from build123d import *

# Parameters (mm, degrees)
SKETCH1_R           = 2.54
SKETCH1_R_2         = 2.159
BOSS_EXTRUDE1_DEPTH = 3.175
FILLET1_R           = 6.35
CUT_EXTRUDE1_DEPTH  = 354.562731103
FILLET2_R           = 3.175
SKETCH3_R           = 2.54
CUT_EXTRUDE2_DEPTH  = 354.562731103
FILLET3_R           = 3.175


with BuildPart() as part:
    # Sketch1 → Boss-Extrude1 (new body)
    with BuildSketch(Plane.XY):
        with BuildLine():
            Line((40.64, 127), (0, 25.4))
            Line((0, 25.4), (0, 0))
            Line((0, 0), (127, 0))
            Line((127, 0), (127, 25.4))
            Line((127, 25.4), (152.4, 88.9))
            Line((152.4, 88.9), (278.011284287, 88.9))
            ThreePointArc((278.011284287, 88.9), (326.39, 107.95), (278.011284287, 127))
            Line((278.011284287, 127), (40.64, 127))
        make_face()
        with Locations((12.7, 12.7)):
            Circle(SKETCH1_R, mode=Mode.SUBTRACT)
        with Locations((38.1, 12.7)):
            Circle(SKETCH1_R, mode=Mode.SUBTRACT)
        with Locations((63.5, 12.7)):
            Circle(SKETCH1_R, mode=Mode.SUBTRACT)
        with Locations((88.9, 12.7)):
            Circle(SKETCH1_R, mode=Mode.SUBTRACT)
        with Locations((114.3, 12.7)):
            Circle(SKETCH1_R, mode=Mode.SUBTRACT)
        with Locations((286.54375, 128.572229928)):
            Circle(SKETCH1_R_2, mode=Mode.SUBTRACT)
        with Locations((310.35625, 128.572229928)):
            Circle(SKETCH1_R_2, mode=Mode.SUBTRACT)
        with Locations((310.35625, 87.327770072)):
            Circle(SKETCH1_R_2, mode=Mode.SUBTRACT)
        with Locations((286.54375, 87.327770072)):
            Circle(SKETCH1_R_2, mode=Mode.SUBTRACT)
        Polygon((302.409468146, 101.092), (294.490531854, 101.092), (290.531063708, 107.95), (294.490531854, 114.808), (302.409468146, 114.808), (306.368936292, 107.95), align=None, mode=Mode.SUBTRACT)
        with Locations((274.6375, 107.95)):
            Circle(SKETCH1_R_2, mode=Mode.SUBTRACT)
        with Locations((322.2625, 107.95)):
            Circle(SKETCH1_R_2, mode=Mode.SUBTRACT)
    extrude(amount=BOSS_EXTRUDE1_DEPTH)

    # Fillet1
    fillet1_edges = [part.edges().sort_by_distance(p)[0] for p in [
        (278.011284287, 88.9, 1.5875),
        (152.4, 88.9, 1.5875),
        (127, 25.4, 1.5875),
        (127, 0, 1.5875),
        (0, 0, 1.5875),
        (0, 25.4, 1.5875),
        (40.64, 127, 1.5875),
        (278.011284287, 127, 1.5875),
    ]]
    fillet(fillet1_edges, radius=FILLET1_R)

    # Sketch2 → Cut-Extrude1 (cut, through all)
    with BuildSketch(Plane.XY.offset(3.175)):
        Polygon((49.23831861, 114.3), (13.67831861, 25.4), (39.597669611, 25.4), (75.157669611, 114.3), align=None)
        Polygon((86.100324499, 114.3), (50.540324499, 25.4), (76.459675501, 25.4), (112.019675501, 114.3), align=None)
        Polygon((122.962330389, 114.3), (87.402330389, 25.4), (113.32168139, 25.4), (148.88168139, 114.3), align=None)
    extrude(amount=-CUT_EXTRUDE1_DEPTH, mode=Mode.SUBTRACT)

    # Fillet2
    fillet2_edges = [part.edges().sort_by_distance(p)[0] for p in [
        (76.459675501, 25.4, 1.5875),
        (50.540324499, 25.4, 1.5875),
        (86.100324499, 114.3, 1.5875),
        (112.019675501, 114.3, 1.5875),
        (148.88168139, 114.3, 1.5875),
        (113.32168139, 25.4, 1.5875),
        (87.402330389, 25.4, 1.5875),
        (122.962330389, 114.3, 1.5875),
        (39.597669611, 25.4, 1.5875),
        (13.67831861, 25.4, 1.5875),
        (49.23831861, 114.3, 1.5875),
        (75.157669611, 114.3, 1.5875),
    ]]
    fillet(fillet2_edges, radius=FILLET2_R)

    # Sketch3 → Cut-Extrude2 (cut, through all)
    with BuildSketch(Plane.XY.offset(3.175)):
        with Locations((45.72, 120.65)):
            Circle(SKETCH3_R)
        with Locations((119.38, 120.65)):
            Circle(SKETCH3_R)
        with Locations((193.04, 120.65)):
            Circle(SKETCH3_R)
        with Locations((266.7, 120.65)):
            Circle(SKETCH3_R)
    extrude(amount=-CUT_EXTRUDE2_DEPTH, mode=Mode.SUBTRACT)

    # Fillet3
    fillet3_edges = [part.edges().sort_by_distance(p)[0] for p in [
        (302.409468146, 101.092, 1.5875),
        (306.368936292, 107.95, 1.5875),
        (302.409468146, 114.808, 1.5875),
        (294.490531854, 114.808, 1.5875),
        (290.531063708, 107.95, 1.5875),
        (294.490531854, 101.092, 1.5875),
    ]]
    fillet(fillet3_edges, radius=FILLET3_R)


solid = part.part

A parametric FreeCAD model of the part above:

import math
import FreeCAD as App
import Part
import Sketcher

V = App.Vector
Q = App.Units.Quantity


def edges_at(feature, points):
    """Names of the edges that pass closest to the given points."""
    edges = feature.Shape.Edges
    near = lambda p: min(range(len(edges)), key=lambda i: edges[i].distToShape(Part.Vertex(*p))[0])
    return sorted({f"Edge{near(p) + 1}" for p in points})

doc = App.newDocument("Part")
body = doc.addObject("PartDesign::Body", "Body")

# Sketch on XY plane
sketch1 = doc.addObject("Sketcher::SketchObject", "Sketch")
body.addObject(sketch1)
sketch1.AttachmentSupport = (doc.XY_Plane, [""])
sketch1.MapMode = "FlatFace"
sketch1.addGeometry([
    Part.LineSegment(V(40.6, 127, 0), V(0, 25.4, 0)),  # 0
    Part.LineSegment(V(0, 25.4, 0), V(0, 0, 0)),  # 1
    Part.LineSegment(V(0, 0, 0), V(127, 0, 0)),  # 2
    Part.LineSegment(V(127, 0, 0), V(127, 25.4, 0)),  # 3
    Part.LineSegment(V(127, 25.4, 0), V(152.4, 88.9, 0)),  # 4
    Part.LineSegment(V(152.4, 88.9, 0), V(278, 88.9, 0)),  # 5
    Part.ArcOfCircle(Part.Circle(V(298.4, 108, 0), V(0, 0, 1), 27.9), math.radians(-137), math.radians(137)),  # 6
    Part.LineSegment(V(278, 127, 0), V(40.6, 127, 0)),  # 7
    Part.Circle(V(12.7, 12.7, 0), V(0, 0, 1), 2.5),  # 8
    Part.Circle(V(38.1, 12.7, 0), V(0, 0, 1), 2.5),  # 9
    Part.Circle(V(63.5, 12.7, 0), V(0, 0, 1), 2.5),  # 10
    Part.Circle(V(88.9, 12.7, 0), V(0, 0, 1), 2.5),  # 11
    Part.Circle(V(114.3, 12.7, 0), V(0, 0, 1), 2.5),  # 12
    Part.Circle(V(286.5, 87.3, 0), V(0, 0, 1), 2.2),  # 13
    Part.Circle(V(310.4, 87.3, 0), V(0, 0, 1), 2.2),  # 14
    Part.Circle(V(274.6, 108, 0), V(0, 0, 1), 2.2),  # 15
    Part.LineSegment(V(306.4, 108, 0), V(302.4, 101.1, 0)),  # 16
    Part.LineSegment(V(302.4, 101.1, 0), V(294.5, 101.1, 0)),  # 17
    Part.LineSegment(V(294.5, 101.1, 0), V(290.5, 108, 0)),  # 18
    Part.LineSegment(V(290.5, 108, 0), V(294.5, 114.8, 0)),  # 19
    Part.LineSegment(V(294.5, 114.8, 0), V(302.4, 114.8, 0)),  # 20
    Part.LineSegment(V(302.4, 114.8, 0), V(306.4, 108, 0)),  # 21
    Part.Circle(V(322.3, 108, 0), V(0, 0, 1), 2.2),  # 22
    Part.Circle(V(286.5, 128.6, 0), V(0, 0, 1), 2.2),  # 23
    Part.Circle(V(310.4, 128.6, 0), V(0, 0, 1), 2.2),  # 24
], False)
sketch1.addConstraint([
    Sketcher.Constraint("Coincident", 0, 2, 1, 1),
    Sketcher.Constraint("Coincident", 1, 2, 2, 1),
    Sketcher.Constraint("Coincident", 2, 2, 3, 1),
    Sketcher.Constraint("Coincident", 3, 2, 4, 1),
    Sketcher.Constraint("Coincident", 4, 2, 5, 1),
    Sketcher.Constraint("Coincident", 5, 2, 6, 1),
    Sketcher.Constraint("Coincident", 6, 2, 7, 1),
    Sketcher.Constraint("Coincident", 7, 2, 0, 1),
    Sketcher.Constraint("Coincident", 16, 2, 17, 1),
    Sketcher.Constraint("Coincident", 17, 2, 18, 1),
    Sketcher.Constraint("Coincident", 18, 2, 19, 1),
    Sketcher.Constraint("Coincident", 19, 2, 20, 1),
    Sketcher.Constraint("Coincident", 20, 2, 21, 1),
    Sketcher.Constraint("Coincident", 21, 2, 16, 1),
    Sketcher.Constraint("Vertical", 1),
    Sketcher.Constraint("Horizontal", 2),
    Sketcher.Constraint("Vertical", 3),
    Sketcher.Constraint("Horizontal", 5),
    Sketcher.Constraint("Horizontal", 7),
    Sketcher.Constraint("Horizontal", 17),
    Sketcher.Constraint("Horizontal", 20),
    Sketcher.Constraint("Coincident", 1, 2, -1, 1),
    Sketcher.Constraint("Equal", 8, 9),
    Sketcher.Constraint("Equal", 9, 10),
    Sketcher.Constraint("Equal", 10, 11),
    Sketcher.Constraint("Equal", 11, 12),
    Sketcher.Constraint("Equal", 13, 14),
    Sketcher.Constraint("Equal", 14, 15),
    Sketcher.Constraint("Equal", 15, 22),
    Sketcher.Constraint("Equal", 22, 23),
    Sketcher.Constraint("Equal", 23, 24),
    Sketcher.Constraint("Parallel", 0, 4),
    Sketcher.Constraint("Parallel", 16, 19),
    Sketcher.Constraint("Parallel", 18, 21),
    Sketcher.Constraint("Horizontal", 8, 3, 9, 3),
    Sketcher.Constraint("Horizontal", 9, 3, 10, 3),
    Sketcher.Constraint("Horizontal", 10, 3, 11, 3),
    Sketcher.Constraint("Horizontal", 11, 3, 12, 3),
    Sketcher.Constraint("Horizontal", 13, 3, 14, 3),
    Sketcher.Constraint("Horizontal", 6, 3, 15, 3),
    Sketcher.Constraint("Horizontal", 15, 3, 22, 3),
    Sketcher.Constraint("Horizontal", 23, 3, 24, 3),
    Sketcher.Constraint("Horizontal", 0, 2, 3, 2),
    Sketcher.Constraint("Horizontal", 22, 3, 18, 2),
    Sketcher.Constraint("Horizontal", 18, 2, 21, 2),
    Sketcher.Constraint("Vertical", 13, 3, 23, 3),
    Sketcher.Constraint("Vertical", 14, 3, 24, 3),
    Sketcher.Constraint("Vertical", 5, 2, 6, 2),
    Sketcher.Constraint("Vertical", 17, 2, 19, 2),
    Sketcher.Constraint("Vertical", 16, 2, 20, 2),
    Sketcher.Constraint("Diameter", 8, Q("0.2 in")),
    Sketcher.Constraint("Radius", 6, Q("1.1 in")),
    Sketcher.Constraint("Diameter", 13, Q("0.17 in")),
    Sketcher.Constraint("DistanceX", 2, 1, 2, 2, Q("5 in")),
    Sketcher.Constraint("DistanceY", 1, 2, 1, 1, Q("1 in")),
    Sketcher.Constraint("DistanceX", -1, 1, 4, 2, Q("6 in")),
    Sketcher.Constraint("DistanceY", -1, 1, 6, 2, Q("5 in")),
    Sketcher.Constraint("Angle", 16, Q("-120 deg")),
    Sketcher.Constraint("DistanceX", 8, 3, 9, 3, Q("1 in")),
    Sketcher.Constraint("DistanceX", 9, 3, 10, 3, Q("1 in")),
    Sketcher.Constraint("DistanceX", 10, 3, 11, 3, Q("1 in")),
    Sketcher.Constraint("DistanceX", 11, 3, 12, 3, Q("1 in")),
    Sketcher.Constraint("DistanceY", 12, 3, 4, 2, Q("3 in")),
    Sketcher.Constraint("DistanceX", -1, 1, 8, 3, Q("0.5 in")),
    Sketcher.Constraint("DistanceY", -1, 1, 8, 3, Q("0.5 in")),
    Sketcher.Constraint("DistanceX", -1, 1, 6, 3, Q("11.75 in")),
    Sketcher.Constraint("DistanceY", -1, 1, 16, 2, Q("3.98 in")),
    Sketcher.Constraint("DistanceX", -1, 1, 13, 3, Q("11.28125 in")),
    Sketcher.Constraint("DistanceX", -1, 1, 14, 3, Q("12.21875 in")),
    Sketcher.Constraint("DistanceX", -1, 1, 15, 3, Q("10.8125 in")),
    Sketcher.Constraint("DistanceX", -1, 1, 22, 3, Q("12.6875 in")),
    Sketcher.Constraint("DistanceX", 17, 2, 17, 1, Q("7.918936 mm")),
    Sketcher.Constraint("DistanceY", -1, 1, 13, 3, Q("87.32777 mm")),
    Sketcher.Constraint("DistanceY", -1, 1, 23, 3, Q("128.57223 mm")),
    Sketcher.Constraint("DistanceX", -1, 1, 16, 2, Q("302.409468 mm")),
])
pad1 = doc.addObject("PartDesign::Pad", "Pad")
body.addObject(pad1)
pad1.Profile = sketch1
pad1.Length = Q("0.125 in")
doc.recompute()

fillet = doc.addObject("PartDesign::Fillet", "Fillet")
body.addObject(fillet)
fillet.Base = (pad1, edges_at(pad1, [
    (278.011, 88.9, 1.587),
    (152.4, 88.9, 1.587),
    (127, 25.4, 1.587),
    (127, 0, 1.587),
    (0, 0, 1.587),
    (0, 25.4, 1.587),
    (40.64, 127, 1.587),
    (278.011, 127, 1.587),
]))
fillet.Radius = Q("0.25 in")

# Sketch on XY plane
sketch2 = doc.addObject("Sketcher::SketchObject", "Sketch001")
body.addObject(sketch2)
sketch2.AttachmentSupport = (doc.XY_Plane, [""])
sketch2.MapMode = "FlatFace"
sketch2.AttachmentOffset = App.Placement(V(0, 0, 0.125 * 25.4), App.Rotation())
sketch2.addGeometry([
    Part.LineSegment(V(49, 114, 0), V(14, 25, 0)),  # 0
    Part.LineSegment(V(14, 25, 0), V(40, 25, 0)),  # 1
    Part.LineSegment(V(40, 25, 0), V(75, 114, 0)),  # 2
    Part.LineSegment(V(75, 114, 0), V(49, 114, 0)),  # 3
    Part.LineSegment(V(86, 114, 0), V(51, 25, 0)),  # 4
    Part.LineSegment(V(51, 25, 0), V(76, 25, 0)),  # 5
    Part.LineSegment(V(76, 25, 0), V(112, 114, 0)),  # 6
    Part.LineSegment(V(112, 114, 0), V(86, 114, 0)),  # 7
    Part.LineSegment(V(123, 114, 0), V(87, 25, 0)),  # 8
    Part.LineSegment(V(87, 25, 0), V(113, 25, 0)),  # 9
    Part.LineSegment(V(113, 25, 0), V(149, 114, 0)),  # 10
    Part.LineSegment(V(149, 114, 0), V(123, 114, 0)),  # 11
], False)
sketch2.addConstraint([
    Sketcher.Constraint("Coincident", 0, 2, 1, 1),
    Sketcher.Constraint("Coincident", 1, 2, 2, 1),
    Sketcher.Constraint("Coincident", 2, 2, 3, 1),
    Sketcher.Constraint("Coincident", 3, 2, 0, 1),
    Sketcher.Constraint("Coincident", 4, 2, 5, 1),
    Sketcher.Constraint("Coincident", 5, 2, 6, 1),
    Sketcher.Constraint("Coincident", 6, 2, 7, 1),
    Sketcher.Constraint("Coincident", 7, 2, 4, 1),
    Sketcher.Constraint("Coincident", 8, 2, 9, 1),
    Sketcher.Constraint("Coincident", 9, 2, 10, 1),
    Sketcher.Constraint("Coincident", 10, 2, 11, 1),
    Sketcher.Constraint("Coincident", 11, 2, 8, 1),
    Sketcher.Constraint("Horizontal", 1),
    Sketcher.Constraint("Horizontal", 3),
    Sketcher.Constraint("Horizontal", 5),
    Sketcher.Constraint("Horizontal", 7),
    Sketcher.Constraint("Horizontal", 9),
    Sketcher.Constraint("Horizontal", 11),
    Sketcher.Constraint("Parallel", 0, 2),
    Sketcher.Constraint("Parallel", 2, 4),
    Sketcher.Constraint("Parallel", 4, 6),
    Sketcher.Constraint("Parallel", 6, 8),
    Sketcher.Constraint("Parallel", 8, 10),
    Sketcher.Constraint("Horizontal", 1, 2, 4, 2),
    Sketcher.Constraint("Horizontal", 3, 2, 6, 2),
    Sketcher.Constraint("Horizontal", 5, 2, 8, 2),
    Sketcher.Constraint("Horizontal", 7, 2, 10, 2),
    Sketcher.Constraint("Equal", 3, 5),
    Sketcher.Constraint("Equal", 7, 9),
    Sketcher.Constraint("DistanceY", -1, 1, 0, 2, Q("1 in")),
    Sketcher.Constraint("DistanceY", -1, 1, 2, 2, Q("4.5 in")),
    Sketcher.Constraint("DistanceX", 1, 2, 2, 2, Q("1.4 in")),
    Sketcher.Constraint("DistanceX", 1, 1, 1, 2, Q("25.919351 mm")),
    Sketcher.Constraint("DistanceX", -1, 1, 0, 2, Q("13.678319 mm")),
    Sketcher.Constraint("DistanceX", -1, 1, 8, 2, Q("87.40233 mm")),
    Sketcher.Constraint("DistanceX", -1, 1, 4, 2, Q("50.540324 mm")),
])
pocket1 = doc.addObject("PartDesign::Pocket", "Pocket")
body.addObject(pocket1)
pocket1.Profile = sketch2
pocket1.Type = "ThroughAll"
doc.recompute()

fillet2 = doc.addObject("PartDesign::Fillet", "Fillet001")
body.addObject(fillet2)
fillet2.Base = (pocket1, edges_at(pocket1, [
    (76.46, 25.4, 1.587),
    (50.54, 25.4, 1.587),
    (86.1, 114.3, 1.587),
    (112.02, 114.3, 1.587),
    (148.882, 114.3, 1.587),
    (113.322, 25.4, 1.587),
    (87.402, 25.4, 1.587),
    (122.962, 114.3, 1.587),
    (39.598, 25.4, 1.587),
    (13.678, 25.4, 1.587),
    (49.238, 114.3, 1.587),
    (75.158, 114.3, 1.587),
]))
fillet2.Radius = Q("0.125 in")

# Sketch on XY plane
sketch3 = doc.addObject("Sketcher::SketchObject", "Sketch002")
body.addObject(sketch3)
sketch3.AttachmentSupport = (doc.XY_Plane, [""])
sketch3.MapMode = "FlatFace"
sketch3.AttachmentOffset = App.Placement(V(0, 0, 0.125 * 25.4), App.Rotation())
sketch3.addGeometry([
    Part.Circle(V(45.7, 120.7, 0), V(0, 0, 1), 2.5),
    Part.Circle(V(119.4, 120.7, 0), V(0, 0, 1), 2.5),
    Part.Circle(V(193, 120.7, 0), V(0, 0, 1), 2.5),
    Part.Circle(V(266.7, 120.7, 0), V(0, 0, 1), 2.5),
], False)
sketch3.addConstraint([
    Sketcher.Constraint("Equal", 0, 1),
    Sketcher.Constraint("Equal", 1, 2),
    Sketcher.Constraint("Equal", 2, 3),
    Sketcher.Constraint("Horizontal", 0, 3, 1, 3),
    Sketcher.Constraint("Horizontal", 1, 3, 2, 3),
    Sketcher.Constraint("Horizontal", 2, 3, 3, 3),
    Sketcher.Constraint("Diameter", 0, Q("0.2 in")),
    Sketcher.Constraint("DistanceX", -1, 1, 0, 3, Q("1.8 in")),
    Sketcher.Constraint("DistanceX", -1, 1, 1, 3, Q("4.7 in")),
    Sketcher.Constraint("DistanceX", -1, 1, 2, 3, Q("7.6 in")),
    Sketcher.Constraint("DistanceX", -1, 1, 3, 3, Q("10.5 in")),
    Sketcher.Constraint("DistanceY", -1, 1, 0, 3, Q("4.75 in")),
])
pocket2 = doc.addObject("PartDesign::Pocket", "Pocket001")
body.addObject(pocket2)
pocket2.Profile = sketch3
pocket2.Type = "ThroughAll"
doc.recompute()

fillet3 = doc.addObject("PartDesign::Fillet", "Fillet002")
body.addObject(fillet3)
fillet3.Base = (pocket2, edges_at(pocket2, [
    (302.409, 101.092, 1.587),
    (306.369, 107.95, 1.587),
    (302.409, 114.808, 1.587),
    (294.491, 114.808, 1.587),
    (290.531, 107.95, 1.587),
    (294.491, 101.092, 1.587),
]))
fillet3.Radius = Q("0.125 in")

doc.recompute()
